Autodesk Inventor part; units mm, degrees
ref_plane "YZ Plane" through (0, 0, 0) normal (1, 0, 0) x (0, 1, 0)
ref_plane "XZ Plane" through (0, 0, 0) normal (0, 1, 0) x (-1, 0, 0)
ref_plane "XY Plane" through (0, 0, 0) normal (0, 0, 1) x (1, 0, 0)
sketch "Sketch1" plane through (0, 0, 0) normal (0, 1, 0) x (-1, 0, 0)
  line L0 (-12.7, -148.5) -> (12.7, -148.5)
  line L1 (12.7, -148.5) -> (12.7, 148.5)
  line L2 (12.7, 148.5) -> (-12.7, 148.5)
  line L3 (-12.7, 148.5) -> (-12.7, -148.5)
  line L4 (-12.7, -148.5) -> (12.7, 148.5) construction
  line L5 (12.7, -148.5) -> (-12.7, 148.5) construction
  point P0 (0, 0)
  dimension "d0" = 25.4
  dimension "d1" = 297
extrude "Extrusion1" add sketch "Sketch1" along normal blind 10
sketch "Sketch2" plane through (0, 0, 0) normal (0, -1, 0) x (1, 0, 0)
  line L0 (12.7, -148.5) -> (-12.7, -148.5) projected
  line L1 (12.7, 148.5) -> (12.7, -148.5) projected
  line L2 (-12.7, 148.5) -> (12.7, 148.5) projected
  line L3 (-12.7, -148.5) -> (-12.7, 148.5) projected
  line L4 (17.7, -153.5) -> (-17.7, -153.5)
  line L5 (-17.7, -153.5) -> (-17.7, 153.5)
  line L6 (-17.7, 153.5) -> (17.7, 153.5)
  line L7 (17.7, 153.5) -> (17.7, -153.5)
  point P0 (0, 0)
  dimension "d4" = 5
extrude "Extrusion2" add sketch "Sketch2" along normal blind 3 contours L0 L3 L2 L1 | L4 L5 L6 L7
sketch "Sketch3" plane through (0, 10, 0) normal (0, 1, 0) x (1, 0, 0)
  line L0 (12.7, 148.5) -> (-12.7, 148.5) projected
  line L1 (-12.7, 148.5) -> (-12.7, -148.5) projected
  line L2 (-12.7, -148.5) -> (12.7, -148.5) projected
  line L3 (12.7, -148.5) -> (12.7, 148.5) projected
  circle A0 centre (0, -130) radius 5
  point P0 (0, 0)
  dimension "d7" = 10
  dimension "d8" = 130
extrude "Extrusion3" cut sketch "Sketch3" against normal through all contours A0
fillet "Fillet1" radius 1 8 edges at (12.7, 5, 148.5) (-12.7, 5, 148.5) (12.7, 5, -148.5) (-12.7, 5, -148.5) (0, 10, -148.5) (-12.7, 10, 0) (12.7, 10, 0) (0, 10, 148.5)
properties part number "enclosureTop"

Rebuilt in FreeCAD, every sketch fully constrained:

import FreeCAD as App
import Part
import Sketcher
from FreeCAD import Vector


def edges_at(feature, points):
    """Names of the edges that pass closest to the given points."""
    edges = feature.Shape.Edges
    near = lambda p: min(range(len(edges)), key=lambda i: edges[i].distToShape(Part.Vertex(*p))[0])
    return sorted({f"Edge{near(p) + 1}" for p in points})

doc = App.newDocument("Part")
body = doc.addObject("PartDesign::Body", "Body")

# Sketch on XZ plane
sketch1 = body.newObject("Sketcher::SketchObject", "Sketch")
sketch1.AttachmentSupport = (doc.getObject("XZ_Plane"), [""])
sketch1.MapMode = "FlatFace"
sketch1.addGeometry([
    Part.LineSegment(Vector(13, 148, 0), Vector(13, -148, 0)),
    Part.LineSegment(Vector(13, -148, 0), Vector(-13, -148, 0)),
    Part.LineSegment(Vector(-13, -148, 0), Vector(-13, 148, 0)),
    Part.LineSegment(Vector(-13, 148, 0), Vector(13, 148, 0)),
], False)
sketch1.addConstraint([
    Sketcher.Constraint("Coincident", 0, 2, 1, 1),
    Sketcher.Constraint("Coincident", 1, 2, 2, 1),
    Sketcher.Constraint("Coincident", 2, 2, 3, 1),
    Sketcher.Constraint("Coincident", 3, 2, 0, 1),
    Sketcher.Constraint("Vertical", 0),
    Sketcher.Constraint("Horizontal", 1),
    Sketcher.Constraint("Vertical", 2),
    Sketcher.Constraint("Horizontal", 3),
    Sketcher.Constraint("Symmetric", 0, 2, 2, 2, -1, 1),
    Sketcher.Constraint("DistanceY", 0, 2, 0, 1, 297.0),
    Sketcher.Constraint("DistanceX", 1, 2, 1, 1, 25.4),
])
pad1 = body.newObject("PartDesign::Pad", "Pad")
pad1.Profile = sketch1
pad1.Length = 10
pad1.Reversed = True

# Sketch on XZ plane
sketch2 = body.newObject("Sketcher::SketchObject", "Sketch001")
sketch2.AttachmentSupport = (doc.getObject("XZ_Plane"), [""])
sketch2.MapMode = "FlatFace"
sketch2.addGeometry([
    Part.LineSegment(Vector(-18, -154, 0), Vector(18, -154, 0)),
    Part.LineSegment(Vector(18, -154, 0), Vector(18, 154, 0)),
    Part.LineSegment(Vector(18, 154, 0), Vector(-18, 154, 0)),
    Part.LineSegment(Vector(-18, 154, 0), Vector(-18, -154, 0)),
], False)
sketch2.addConstraint([
    Sketcher.Constraint("Coincident", 0, 2, 1, 1),
    Sketcher.Constraint("Coincident", 1, 2, 2, 1),
    Sketcher.Constraint("Coincident", 2, 2, 3, 1),
    Sketcher.Constraint("Coincident", 3, 2, 0, 1),
    Sketcher.Constraint("Horizontal", 0),
    Sketcher.Constraint("Vertical", 1),
    Sketcher.Constraint("Horizontal", 2),
    Sketcher.Constraint("Vertical", 3),
    Sketcher.Constraint("Symmetric", 0, 2, 2, 2, -1, 1),
    Sketcher.Constraint("DistanceY", 1, 1, 1, 2, 307.0),
    Sketcher.Constraint("DistanceX", 0, 1, 0, 2, 35.4),
])
pad2 = body.newObject("PartDesign::Pad", "Pad001")
pad2.Profile = sketch2
pad2.Length = 3

# Sketch on XZ plane
sketch3 = body.newObject("Sketcher::SketchObject", "Sketch002")
sketch3.AttachmentSupport = (doc.getObject("XZ_Plane"), [""])
sketch3.MapMode = "FlatFace"
sketch3.AttachmentOffset = App.Placement(Vector(0, 0, -10), App.Rotation())
sketch3.addGeometry(Part.Circle(Vector(0, 130, 0), Vector(0, 0, 1), 5), False)
sketch3.addConstraint([
    Sketcher.Constraint("PointOnObject", 0, 3, -2),
    Sketcher.Constraint("Diameter", 0, 10.0),
    Sketcher.Constraint("DistanceY", -1, 1, 0, 3, 130.0),
])
pocket1 = body.newObject("PartDesign::Pocket", "Pocket")
pocket1.Profile = sketch3
pocket1.Type = "ThroughAll"
pocket1.Reversed = True
doc.recompute()

fillet = body.newObject("PartDesign::Fillet", "Fillet")
fillet.Base = (pocket1, edges_at(pocket1, [
    (12.7, 5, 148.5),
    (-12.7, 5, 148.5),
    (12.7, 5, -148.5),
    (-12.7, 5, -148.5),
    (0, 10, -148.5),
    (-12.7, 10, 0),
    (12.7, 10, 0),
    (0, 10, 148.5),
]))
fillet.Radius = 1

doc.recompute()
